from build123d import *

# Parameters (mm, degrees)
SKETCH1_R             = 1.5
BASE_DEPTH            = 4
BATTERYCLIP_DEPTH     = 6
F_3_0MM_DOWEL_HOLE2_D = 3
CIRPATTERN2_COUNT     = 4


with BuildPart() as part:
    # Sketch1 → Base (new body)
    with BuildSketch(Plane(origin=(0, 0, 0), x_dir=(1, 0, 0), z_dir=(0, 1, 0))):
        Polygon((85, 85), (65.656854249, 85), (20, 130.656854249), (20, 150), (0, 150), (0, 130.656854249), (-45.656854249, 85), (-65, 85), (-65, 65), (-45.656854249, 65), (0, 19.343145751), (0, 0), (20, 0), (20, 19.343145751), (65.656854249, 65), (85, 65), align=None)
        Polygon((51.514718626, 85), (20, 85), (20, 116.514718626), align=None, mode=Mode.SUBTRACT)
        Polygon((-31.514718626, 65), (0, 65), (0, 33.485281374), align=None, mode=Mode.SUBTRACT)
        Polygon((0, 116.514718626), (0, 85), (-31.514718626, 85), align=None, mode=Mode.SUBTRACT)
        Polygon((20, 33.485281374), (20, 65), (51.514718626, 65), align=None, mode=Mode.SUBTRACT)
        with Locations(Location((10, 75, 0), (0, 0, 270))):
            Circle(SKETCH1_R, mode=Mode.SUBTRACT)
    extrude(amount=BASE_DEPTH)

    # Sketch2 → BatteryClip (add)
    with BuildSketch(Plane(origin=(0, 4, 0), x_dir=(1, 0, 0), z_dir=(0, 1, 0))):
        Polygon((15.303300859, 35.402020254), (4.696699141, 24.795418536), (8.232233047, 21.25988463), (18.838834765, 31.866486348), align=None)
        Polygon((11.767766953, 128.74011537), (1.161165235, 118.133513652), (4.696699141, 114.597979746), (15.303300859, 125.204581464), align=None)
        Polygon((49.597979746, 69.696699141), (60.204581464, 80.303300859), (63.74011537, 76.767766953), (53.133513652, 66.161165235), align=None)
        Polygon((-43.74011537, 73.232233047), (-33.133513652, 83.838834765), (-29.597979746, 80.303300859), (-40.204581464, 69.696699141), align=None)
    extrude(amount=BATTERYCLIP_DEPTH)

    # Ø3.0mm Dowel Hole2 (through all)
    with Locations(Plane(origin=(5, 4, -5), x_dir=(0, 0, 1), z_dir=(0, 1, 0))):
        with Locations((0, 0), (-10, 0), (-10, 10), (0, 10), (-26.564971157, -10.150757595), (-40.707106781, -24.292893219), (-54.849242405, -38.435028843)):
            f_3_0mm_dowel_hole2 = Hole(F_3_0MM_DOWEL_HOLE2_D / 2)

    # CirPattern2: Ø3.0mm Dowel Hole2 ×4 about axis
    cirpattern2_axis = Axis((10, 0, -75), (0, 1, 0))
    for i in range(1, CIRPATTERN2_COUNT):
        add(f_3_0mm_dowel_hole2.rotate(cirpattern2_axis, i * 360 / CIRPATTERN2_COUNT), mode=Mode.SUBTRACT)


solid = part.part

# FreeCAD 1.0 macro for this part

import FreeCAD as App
import Part
import Sketcher

V = App.Vector
Q = App.Units.Quantity


def add_polygon(sketch, points):
    """Adds a closed chain of lines whose ends are joined by coincident constraints."""
    first, n = sketch.GeometryCount, len(points)
    for a, b in zip(points, points[1:] + points[:1]):
        sketch.addGeometry(Part.LineSegment(App.Vector(*a, 0), App.Vector(*b, 0)), False)
    for i in range(n):
        sketch.addConstraint(Sketcher.Constraint("Coincident", first + i, 2, first + (i + 1) % n, 1))

doc = App.newDocument("Part")
body = doc.addObject("PartDesign::Body", "Body")

# Sketch on XZ plane
sketch1 = doc.addObject("Sketcher::SketchObject", "Sketch")
body.addObject(sketch1)
sketch1.AttachmentSupport = (doc.XZ_Plane, [""])
sketch1.MapMode = "FlatFace"
add_polygon(sketch1, [(85, -85), (65.7, -85), (20, -130.7), (20, -150), (0, -150), (0, -130.7), (-45.7, -85), (-65, -85), (-65, -65), (-45.7, -65), (0, -19.3), (0, 0), (20, 0), (20, -19.3), (65.7, -65), (85, -65)])  # lines 0-15
add_polygon(sketch1, [(0, -33.5), (-31.5, -65), (0, -65)])  # lines 16-18
add_polygon(sketch1, [(51.5, -65), (20, -33.5), (20, -65)])  # lines 19-21
sketch1.addGeometry(Part.Circle(V(10, -75, 0), V(0, 0, 1), 1.5), False)  # 22
add_polygon(sketch1, [(-31.5, -85), (0, -116.5), (0, -85)])  # lines 23-25
add_polygon(sketch1, [(20, -116.5), (51.5, -85), (20, -85)])  # lines 26-28
sketch1.addConstraint(Sketcher.Constraint("Horizontal", 0))
sketch1.addConstraint(Sketcher.Constraint("Vertical", 2))
sketch1.addConstraint(Sketcher.Constraint("Horizontal", 3))
sketch1.addConstraint(Sketcher.Constraint("Vertical", 4))
sketch1.addConstraint(Sketcher.Constraint("Horizontal", 6))
sketch1.addConstraint(Sketcher.Constraint("Vertical", 7))
sketch1.addConstraint(Sketcher.Constraint("Horizontal", 8))
sketch1.addConstraint(Sketcher.Constraint("Vertical", 10))
sketch1.addConstraint(Sketcher.Constraint("Horizontal", 11))
sketch1.addConstraint(Sketcher.Constraint("Vertical", 12))
sketch1.addConstraint(Sketcher.Constraint("Horizontal", 14))
sketch1.addConstraint(Sketcher.Constraint("Vertical", 15))
sketch1.addConstraint(Sketcher.Constraint("Horizontal", 17))
sketch1.addConstraint(Sketcher.Constraint("Vertical", 18))
sketch1.addConstraint(Sketcher.Constraint("Vertical", 20))
sketch1.addConstraint(Sketcher.Constraint("Horizontal", 21))
sketch1.addConstraint(Sketcher.Constraint("Vertical", 24))
sketch1.addConstraint(Sketcher.Constraint("Horizontal", 25))
sketch1.addConstraint(Sketcher.Constraint("Horizontal", 27))
sketch1.addConstraint(Sketcher.Constraint("Vertical", 28))
sketch1.addConstraint(Sketcher.Constraint("Coincident", 10, 2, -1, 1))
sketch1.addConstraint(Sketcher.Constraint("PointOnObject", 3, 2, -2))
sketch1.addConstraint(Sketcher.Constraint("PointOnObject", 17, 2, -2))
sketch1.addConstraint(Sketcher.Constraint("PointOnObject", 23, 2, -2))
sketch1.addConstraint(Sketcher.Constraint("Perpendicular", 1, 5))
sketch1.addConstraint(Sketcher.Constraint("Perpendicular", 5, 9))
sketch1.addConstraint(Sketcher.Constraint("Perpendicular", 9, 13))
sketch1.addConstraint(Sketcher.Constraint("Perpendicular", 13, 16))
sketch1.addConstraint(Sketcher.Constraint("Perpendicular", 16, 19))
sketch1.addConstraint(Sketcher.Constraint("Parallel", 19, 23))
sketch1.addConstraint(Sketcher.Constraint("Perpendicular", 23, 26))
sketch1.addConstraint(Sketcher.Constraint("Horizontal", 1, 2, 4, 2))
sketch1.addConstraint(Sketcher.Constraint("Horizontal", 0, 2, 5, 2))
sketch1.addConstraint(Sketcher.Constraint("Horizontal", 9, 2, 12, 2))
sketch1.addConstraint(Sketcher.Constraint("Horizontal", 8, 2, 13, 2))
sketch1.addConstraint(Sketcher.Constraint("Horizontal", 14, 2, 16, 2))
sketch1.addConstraint(Sketcher.Constraint("Horizontal", 18, 2, 19, 2))
sketch1.addConstraint(Sketcher.Constraint("Horizontal", 17, 2, 20, 2))
sketch1.addConstraint(Sketcher.Constraint("Horizontal", 15, 2, 24, 2))
sketch1.addConstraint(Sketcher.Constraint("Horizontal", 25, 2, 26, 2))
sketch1.addConstraint(Sketcher.Constraint("Horizontal", 23, 2, 28, 2))
sketch1.addConstraint(Sketcher.Constraint("Vertical", 5, 2, 8, 2))
sketch1.addConstraint(Sketcher.Constraint("Vertical", 2, 2, 11, 2))
sketch1.addConstraint(Sketcher.Constraint("Vertical", 0, 2, 13, 2))
sketch1.addConstraint(Sketcher.Constraint("Vertical", 12, 2, 19, 2))
sketch1.addConstraint(Sketcher.Constraint("Vertical", 16, 2, 25, 2))
sketch1.addConstraint(Sketcher.Constraint("Vertical", 21, 2, 26, 2))
sketch1.addConstraint(Sketcher.Constraint("Equal", 0, 6))
sketch1.addConstraint(Sketcher.Constraint("Equal", 14, 2))
sketch1.addConstraint(Sketcher.Constraint("Equal", 11, 7))
sketch1.addConstraint(Sketcher.Constraint("Equal", 4, 10))
sketch1.addConstraint(Sketcher.Constraint("Diameter", 22, 3.0))
sketch1.addConstraint(Sketcher.Constraint("DistanceX", 3, 2, 3, 1, 20.0))
sketch1.addConstraint(Sketcher.Constraint("DistanceX", -1, 1, 22, 3, 10.0))
sketch1.addConstraint(Sketcher.Constraint("DistanceY", 22, 3, -1, 1, 75.0))
sketch1.addConstraint(Sketcher.Constraint("DistanceY", 0, 2, -1, 1, 85.0))
sketch1.addConstraint(Sketcher.Constraint("DistanceX", 17, 1, 17, 2, 31.514719))
sketch1.addConstraint(Sketcher.Constraint("DistanceX", 0, 2, 0, 1, 19.343146))
pad1 = doc.addObject("PartDesign::Pad", "Pad")
body.addObject(pad1)
pad1.Profile = sketch1
pad1.Length = 4
pad1.Reversed = True

# Sketch on XZ plane
sketch2 = doc.addObject("Sketcher::SketchObject", "Sketch001")
body.addObject(sketch2)
sketch2.AttachmentSupport = (doc.XZ_Plane, [""])
sketch2.MapMode = "FlatFace"
sketch2.AttachmentOffset = App.Placement(V(0, 0, -4), App.Rotation())
add_polygon(sketch2, [(15, -35), (5, -25), (8, -21), (19, -32)])  # lines 0-3
add_polygon(sketch2, [(12, -129), (1, -118), (5, -115), (15, -125)])  # lines 4-7
add_polygon(sketch2, [(60, -80), (50, -70), (53, -66), (64, -77)])  # lines 8-11
add_polygon(sketch2, [(-33, -84), (-44, -73), (-40, -70), (-30, -80)])  # lines 12-15
sketch2.addConstraint(Sketcher.Constraint("Perpendicular", 0, 1))
sketch2.addConstraint(Sketcher.Constraint("Perpendicular", 1, 2))
sketch2.addConstraint(Sketcher.Constraint("Perpendicular", 2, 3))
sketch2.addConstraint(Sketcher.Constraint("Perpendicular", 3, 4))
sketch2.addConstraint(Sketcher.Constraint("Perpendicular", 4, 5))
sketch2.addConstraint(Sketcher.Constraint("Perpendicular", 5, 6))
sketch2.addConstraint(Sketcher.Constraint("Perpendicular", 6, 7))
sketch2.addConstraint(Sketcher.Constraint("Perpendicular", 7, 8))
sketch2.addConstraint(Sketcher.Constraint("Perpendicular", 8, 9))
sketch2.addConstraint(Sketcher.Constraint("Perpendicular", 9, 10))
sketch2.addConstraint(Sketcher.Constraint("Perpendicular", 10, 11))
sketch2.addConstraint(Sketcher.Constraint("Perpendicular", 11, 12))
sketch2.addConstraint(Sketcher.Constraint("Perpendicular", 12, 13))
sketch2.addConstraint(Sketcher.Constraint("Perpendicular", 13, 14))
sketch2.addConstraint(Sketcher.Constraint("Perpendicular", 14, 15))
sketch2.addConstraint(Sketcher.Constraint("Horizontal", 8, 2, 13, 2))
sketch2.addConstraint(Sketcher.Constraint("Horizontal", 11, 2, 14, 2))
sketch2.addConstraint(Sketcher.Constraint("Vertical", 0, 2, 5, 2))
sketch2.addConstraint(Sketcher.Constraint("Vertical", 3, 2, 6, 2))
sketch2.addConstraint(Sketcher.Constraint("Equal", 3, 5))
sketch2.addConstraint(Sketcher.Constraint("Equal", 6, 8))
sketch2.addConstraint(Sketcher.Constraint("Equal", 7, 9))
sketch2.addConstraint(Sketcher.Constraint("Equal", 11, 13))
sketch2.addConstraint(Sketcher.Constraint("Angle", 0, Q("135 deg")))
sketch2.addConstraint(Sketcher.Constraint("Distance", 0, 15.0))
sketch2.addConstraint(Sketcher.Constraint("Distance", 1, 5.0))
sketch2.addConstraint(Sketcher.Constraint("DistanceX", -1, 1, 0, 2, 4.696699))
sketch2.addConstraint(Sketcher.Constraint("DistanceY", 8, 2, -1, 1, 69.696699))
sketch2.addConstraint(Sketcher.Constraint("DistanceY", 0, 2, -1, 1, 24.795419))
sketch2.addConstraint(Sketcher.Constraint("DistanceY", 5, 2, -1, 1, 114.59798))
sketch2.addConstraint(Sketcher.Constraint("DistanceX", -1, 1, 8, 2, 49.59798))
sketch2.addConstraint(Sketcher.Constraint("DistanceX", 13, 2, -1, 1, 40.204581))
pad2 = doc.addObject("PartDesign::Pad", "Pad001")
body.addObject(pad2)
pad2.Profile = sketch2
pad2.Length = 6
pad2.Reversed = True

# Sketch on XZ plane
sketch3 = doc.addObject("Sketcher::SketchObject", "Sketch002")
body.addObject(sketch3)
sketch3.AttachmentSupport = (doc.XZ_Plane, [""])
sketch3.MapMode = "FlatFace"
sketch3.AttachmentOffset = App.Placement(V(0, 0, -4), App.Rotation())
sketch3.addGeometry(Part.Circle(V(5, -5, 0), V(0, 0, 1), 1.5), False)
sketch3.addGeometry(Part.Circle(V(5, -15, 0), V(0, 0, 1), 1.5), False)
sketch3.addGeometry(Part.Circle(V(15, -15, 0), V(0, 0, 1), 1.5), False)
sketch3.addGeometry(Part.Circle(V(15, -5, 0), V(0, 0, 1), 1.5), False)
sketch3.addGeometry(Part.Circle(V(-5.2, -31.6, 0), V(0, 0, 1), 1.5), False)
sketch3.addGeometry(Part.Circle(V(-19.3, -45.7, 0), V(0, 0, 1), 1.5), False)
sketch3.addGeometry(Part.Circle(V(-33.4, -59.8, 0), V(0, 0, 1), 1.5), False)
sketch3.addConstraint(Sketcher.Constraint("Equal", 0, 1))
sketch3.addConstraint(Sketcher.Constraint("Equal", 1, 2))
sketch3.addConstraint(Sketcher.Constraint("Equal", 2, 3))
sketch3.addConstraint(Sketcher.Constraint("Equal", 3, 4))
sketch3.addConstraint(Sketcher.Constraint("Equal", 4, 5))
sketch3.addConstraint(Sketcher.Constraint("Equal", 5, 6))
sketch3.addConstraint(Sketcher.Constraint("Horizontal", 1, 3, 2, 3))
sketch3.addConstraint(Sketcher.Constraint("Horizontal", 0, 3, 3, 3))
sketch3.addConstraint(Sketcher.Constraint("Vertical", 0, 3, 1, 3))
sketch3.addConstraint(Sketcher.Constraint("Vertical", 2, 3, 3, 3))
sketch3.addConstraint(Sketcher.Constraint("Diameter", 0, 3.0))
sketch3.addConstraint(Sketcher.Constraint("DistanceX", -1, 1, 0, 3, 5.0))
sketch3.addConstraint(Sketcher.Constraint("DistanceY", 0, 3, -1, 1, 5.0))
sketch3.addConstraint(Sketcher.Constraint("DistanceY", 1, 3, -1, 1, 15.0))
sketch3.addConstraint(Sketcher.Constraint("DistanceX", -1, 1, 2, 3, 15.0))
sketch3.addConstraint(Sketcher.Constraint("DistanceY", 4, 3, -1, 1, 31.564971))
sketch3.addConstraint(Sketcher.Constraint("DistanceX", 6, 3, -1, 1, 33.435029))
sketch3.addConstraint(Sketcher.Constraint("DistanceX", 6, 3, 4, 3, 28.284271))
sketch3.addConstraint(Sketcher.Constraint("DistanceY", 6, 3, 4, 3, 28.284271))
sketch3.addConstraint(Sketcher.Constraint("DistanceX", 5, 3, -1, 1, 19.292893))
sketch3.addConstraint(Sketcher.Constraint("DistanceY", 5, 3, -1, 1, 45.707107))
doc.recompute()
hole = doc.addObject("PartDesign::Hole", "Hole")
body.addObject(hole)
hole.Profile = sketch3
hole.ThreadType = "None"
hole.Diameter = 3
hole.DepthType = "ThroughAll"
hole.Reversed = True
doc.recompute()

datumline = doc.addObject("PartDesign::Line", "DatumLine")
body.addObject(datumline)
datumline.Placement = App.Placement(V(10, 0, -75), App.Rotation(V(0, 0, 1), V(0, 1, 0)))
polarpattern = doc.addObject("PartDesign::PolarPattern", "PolarPattern")
body.addObject(polarpattern)
polarpattern.Originals = [hole]
polarpattern.Axis = (datumline, [""])
polarpattern.Angle = 360
polarpattern.Occurrences = 4
body.Tip = polarpattern

doc.recompute()
